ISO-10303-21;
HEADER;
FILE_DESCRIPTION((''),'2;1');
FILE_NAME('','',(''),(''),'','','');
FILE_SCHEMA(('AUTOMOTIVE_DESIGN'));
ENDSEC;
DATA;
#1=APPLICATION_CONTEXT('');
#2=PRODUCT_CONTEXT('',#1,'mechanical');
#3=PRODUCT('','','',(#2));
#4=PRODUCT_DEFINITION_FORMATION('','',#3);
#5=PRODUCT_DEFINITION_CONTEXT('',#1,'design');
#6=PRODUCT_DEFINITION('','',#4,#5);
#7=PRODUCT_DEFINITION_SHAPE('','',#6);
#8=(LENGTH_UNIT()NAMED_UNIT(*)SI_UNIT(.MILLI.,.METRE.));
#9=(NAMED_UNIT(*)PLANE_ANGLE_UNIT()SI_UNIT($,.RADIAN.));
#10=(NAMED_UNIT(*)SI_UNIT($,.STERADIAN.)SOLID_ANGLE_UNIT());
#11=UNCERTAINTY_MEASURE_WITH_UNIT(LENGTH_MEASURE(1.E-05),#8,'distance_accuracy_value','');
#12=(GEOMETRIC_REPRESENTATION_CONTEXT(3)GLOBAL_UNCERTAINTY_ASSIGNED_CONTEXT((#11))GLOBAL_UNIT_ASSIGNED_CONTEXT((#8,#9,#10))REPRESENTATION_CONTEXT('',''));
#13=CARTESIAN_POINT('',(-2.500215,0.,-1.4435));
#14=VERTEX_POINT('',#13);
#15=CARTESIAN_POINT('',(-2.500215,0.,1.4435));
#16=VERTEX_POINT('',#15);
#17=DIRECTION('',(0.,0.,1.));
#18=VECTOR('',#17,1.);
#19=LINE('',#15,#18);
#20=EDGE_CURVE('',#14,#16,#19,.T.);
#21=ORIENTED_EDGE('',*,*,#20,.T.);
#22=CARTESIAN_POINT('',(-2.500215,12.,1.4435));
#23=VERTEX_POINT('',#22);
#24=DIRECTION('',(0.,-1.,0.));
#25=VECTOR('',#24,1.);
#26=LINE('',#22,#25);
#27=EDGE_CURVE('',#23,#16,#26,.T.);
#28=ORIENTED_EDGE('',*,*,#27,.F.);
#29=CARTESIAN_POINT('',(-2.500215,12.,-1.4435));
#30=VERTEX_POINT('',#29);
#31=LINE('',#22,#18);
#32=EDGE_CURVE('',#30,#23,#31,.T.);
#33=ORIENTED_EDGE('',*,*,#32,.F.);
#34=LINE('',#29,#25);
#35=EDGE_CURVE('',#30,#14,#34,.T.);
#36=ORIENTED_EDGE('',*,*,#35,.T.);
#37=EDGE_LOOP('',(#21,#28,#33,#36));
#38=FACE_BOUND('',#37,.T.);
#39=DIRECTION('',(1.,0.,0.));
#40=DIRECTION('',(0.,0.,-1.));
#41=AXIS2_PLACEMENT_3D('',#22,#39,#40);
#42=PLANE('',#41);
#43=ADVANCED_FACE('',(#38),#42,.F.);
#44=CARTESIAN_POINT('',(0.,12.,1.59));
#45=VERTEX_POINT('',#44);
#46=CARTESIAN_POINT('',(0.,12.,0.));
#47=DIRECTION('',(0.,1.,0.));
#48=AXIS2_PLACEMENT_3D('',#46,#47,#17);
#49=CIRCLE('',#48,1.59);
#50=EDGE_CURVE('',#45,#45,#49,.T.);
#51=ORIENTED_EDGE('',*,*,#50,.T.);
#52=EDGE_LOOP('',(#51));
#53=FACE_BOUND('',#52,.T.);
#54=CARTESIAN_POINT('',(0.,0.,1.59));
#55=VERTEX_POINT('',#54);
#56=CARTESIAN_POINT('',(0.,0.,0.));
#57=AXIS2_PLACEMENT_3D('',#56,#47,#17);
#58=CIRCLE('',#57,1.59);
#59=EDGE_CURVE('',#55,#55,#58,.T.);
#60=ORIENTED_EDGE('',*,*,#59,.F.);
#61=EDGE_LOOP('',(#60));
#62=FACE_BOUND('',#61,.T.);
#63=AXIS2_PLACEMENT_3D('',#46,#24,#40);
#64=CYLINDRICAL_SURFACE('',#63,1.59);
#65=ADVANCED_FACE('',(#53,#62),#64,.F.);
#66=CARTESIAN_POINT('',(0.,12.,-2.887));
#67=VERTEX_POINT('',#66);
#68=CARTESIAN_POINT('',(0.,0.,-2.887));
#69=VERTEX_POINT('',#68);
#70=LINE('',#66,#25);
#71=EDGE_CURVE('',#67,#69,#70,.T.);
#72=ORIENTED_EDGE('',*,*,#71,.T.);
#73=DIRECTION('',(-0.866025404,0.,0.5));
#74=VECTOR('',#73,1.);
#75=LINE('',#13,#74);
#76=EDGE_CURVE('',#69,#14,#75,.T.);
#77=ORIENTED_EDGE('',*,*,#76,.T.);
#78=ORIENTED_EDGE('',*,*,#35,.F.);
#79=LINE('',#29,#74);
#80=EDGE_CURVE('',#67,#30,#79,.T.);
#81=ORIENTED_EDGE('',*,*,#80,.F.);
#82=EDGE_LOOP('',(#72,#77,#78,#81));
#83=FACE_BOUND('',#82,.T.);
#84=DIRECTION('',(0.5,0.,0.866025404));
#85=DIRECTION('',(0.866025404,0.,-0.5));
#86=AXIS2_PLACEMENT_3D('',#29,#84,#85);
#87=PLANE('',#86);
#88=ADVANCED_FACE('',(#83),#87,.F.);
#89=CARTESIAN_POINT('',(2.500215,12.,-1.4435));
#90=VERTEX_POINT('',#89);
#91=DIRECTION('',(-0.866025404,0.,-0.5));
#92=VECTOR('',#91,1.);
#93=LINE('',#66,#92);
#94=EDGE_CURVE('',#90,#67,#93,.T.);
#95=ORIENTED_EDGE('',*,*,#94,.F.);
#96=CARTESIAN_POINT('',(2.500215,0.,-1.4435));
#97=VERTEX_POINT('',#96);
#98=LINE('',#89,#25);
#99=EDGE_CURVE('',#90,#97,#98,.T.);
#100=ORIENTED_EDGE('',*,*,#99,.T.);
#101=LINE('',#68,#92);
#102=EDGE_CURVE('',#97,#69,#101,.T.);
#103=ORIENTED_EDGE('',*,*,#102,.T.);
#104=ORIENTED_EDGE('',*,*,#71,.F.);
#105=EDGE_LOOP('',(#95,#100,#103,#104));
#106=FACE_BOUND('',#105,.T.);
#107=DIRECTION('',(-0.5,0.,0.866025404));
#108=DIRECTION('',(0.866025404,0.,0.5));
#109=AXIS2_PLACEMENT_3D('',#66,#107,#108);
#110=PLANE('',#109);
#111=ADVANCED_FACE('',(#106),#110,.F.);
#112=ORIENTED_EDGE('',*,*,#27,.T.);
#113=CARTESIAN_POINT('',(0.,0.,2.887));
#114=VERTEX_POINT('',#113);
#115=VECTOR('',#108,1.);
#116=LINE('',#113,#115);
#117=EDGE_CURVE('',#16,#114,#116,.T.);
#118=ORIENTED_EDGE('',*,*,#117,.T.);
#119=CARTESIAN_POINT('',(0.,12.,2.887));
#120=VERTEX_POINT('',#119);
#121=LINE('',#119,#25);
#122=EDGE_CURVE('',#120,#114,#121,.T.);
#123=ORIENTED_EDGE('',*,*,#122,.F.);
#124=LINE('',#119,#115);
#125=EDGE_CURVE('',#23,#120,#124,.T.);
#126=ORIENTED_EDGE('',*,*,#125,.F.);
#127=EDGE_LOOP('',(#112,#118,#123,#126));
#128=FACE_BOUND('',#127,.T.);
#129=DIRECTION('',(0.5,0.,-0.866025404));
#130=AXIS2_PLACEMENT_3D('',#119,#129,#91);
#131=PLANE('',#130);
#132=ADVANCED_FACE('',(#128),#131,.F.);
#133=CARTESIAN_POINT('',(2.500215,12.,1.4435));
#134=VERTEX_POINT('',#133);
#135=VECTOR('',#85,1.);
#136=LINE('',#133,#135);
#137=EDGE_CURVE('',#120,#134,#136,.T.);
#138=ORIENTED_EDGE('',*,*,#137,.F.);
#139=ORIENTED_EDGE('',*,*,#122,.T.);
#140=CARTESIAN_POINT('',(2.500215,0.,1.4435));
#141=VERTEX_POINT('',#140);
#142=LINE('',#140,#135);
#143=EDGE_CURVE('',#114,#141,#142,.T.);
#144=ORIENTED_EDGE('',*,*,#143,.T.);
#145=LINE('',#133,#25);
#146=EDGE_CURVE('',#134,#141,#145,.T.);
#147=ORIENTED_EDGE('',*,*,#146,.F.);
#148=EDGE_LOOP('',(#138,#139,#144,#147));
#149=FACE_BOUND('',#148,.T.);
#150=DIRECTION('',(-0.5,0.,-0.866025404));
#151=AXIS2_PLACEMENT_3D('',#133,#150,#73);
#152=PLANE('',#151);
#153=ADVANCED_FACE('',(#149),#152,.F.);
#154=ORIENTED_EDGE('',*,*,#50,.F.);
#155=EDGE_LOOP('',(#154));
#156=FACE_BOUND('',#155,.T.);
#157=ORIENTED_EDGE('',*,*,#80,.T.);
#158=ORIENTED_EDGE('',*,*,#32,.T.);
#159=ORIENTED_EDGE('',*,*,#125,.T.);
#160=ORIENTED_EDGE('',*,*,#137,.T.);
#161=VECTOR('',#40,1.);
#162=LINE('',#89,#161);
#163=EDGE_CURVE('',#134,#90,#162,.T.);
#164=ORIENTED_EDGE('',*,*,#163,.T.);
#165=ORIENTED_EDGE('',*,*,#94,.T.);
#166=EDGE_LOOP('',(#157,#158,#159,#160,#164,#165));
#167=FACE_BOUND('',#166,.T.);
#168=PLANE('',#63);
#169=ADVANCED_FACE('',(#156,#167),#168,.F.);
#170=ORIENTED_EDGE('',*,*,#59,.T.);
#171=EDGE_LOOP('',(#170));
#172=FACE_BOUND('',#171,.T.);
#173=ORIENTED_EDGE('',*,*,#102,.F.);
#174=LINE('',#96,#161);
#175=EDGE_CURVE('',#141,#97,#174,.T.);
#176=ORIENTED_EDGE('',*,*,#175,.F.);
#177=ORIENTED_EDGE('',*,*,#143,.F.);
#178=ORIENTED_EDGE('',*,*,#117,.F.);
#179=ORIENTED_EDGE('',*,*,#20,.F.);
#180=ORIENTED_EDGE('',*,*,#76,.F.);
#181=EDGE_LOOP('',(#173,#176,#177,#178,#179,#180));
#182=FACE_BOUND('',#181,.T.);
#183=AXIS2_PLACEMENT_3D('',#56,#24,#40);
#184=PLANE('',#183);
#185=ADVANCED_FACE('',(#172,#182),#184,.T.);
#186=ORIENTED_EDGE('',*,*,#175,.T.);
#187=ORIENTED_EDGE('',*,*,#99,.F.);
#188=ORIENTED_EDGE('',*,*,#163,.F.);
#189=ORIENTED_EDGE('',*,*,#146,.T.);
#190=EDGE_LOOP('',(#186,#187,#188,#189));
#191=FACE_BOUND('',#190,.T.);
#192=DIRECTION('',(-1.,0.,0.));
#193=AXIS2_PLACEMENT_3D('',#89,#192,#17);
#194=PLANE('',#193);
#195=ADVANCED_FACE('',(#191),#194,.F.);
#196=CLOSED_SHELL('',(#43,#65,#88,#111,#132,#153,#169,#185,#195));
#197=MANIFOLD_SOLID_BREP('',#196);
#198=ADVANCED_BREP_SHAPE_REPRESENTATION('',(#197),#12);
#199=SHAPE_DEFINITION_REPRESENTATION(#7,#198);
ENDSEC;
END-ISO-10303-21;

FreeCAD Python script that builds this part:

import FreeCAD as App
import Part
import Sketcher
Q = App.Units.Quantity


def add_polygon(sketch, points):
    """Adds a closed chain of lines whose ends are joined by coincident constraints."""
    first, n = sketch.GeometryCount, len(points)
    for a, b in zip(points, points[1:] + points[:1]):
        sketch.addGeometry(Part.LineSegment(App.Vector(*a, 0), App.Vector(*b, 0)), False)
    for i in range(n):
        sketch.addConstraint(Sketcher.Constraint("Coincident", first + i, 2, first + (i + 1) % n, 1))

doc = App.newDocument("Part")
params = doc.addObject("Spreadsheet::Sheet", "Params")
for row, (alias, value) in enumerate([
    ("sketch1_diameter", "3.18 mm"),
    ("pad1_length", "12 mm"),
], start=1):
    params.set(f"A{row}", alias)
    params.set(f"B{row}", "=" + value)
    params.setAlias(f"B{row}", alias)

body = doc.addObject("PartDesign::Body", "Body")

sketch1 = body.newObject("Sketcher::SketchObject", "Sketch")
sketch1.AttachmentSupport = (doc.getObject("XZ_Plane"), [""])
sketch1.MapMode = "FlatFace"
add_polygon(sketch1, [(2.500215, -1.4435), (0, -2.887), (-2.500215, -1.4435), (-2.500215, 1.4435), (0, 2.887), (2.500215, 1.4435)])
sketch1.addGeometry(Part.Circle(App.Vector(0, 0, 0), App.Vector(0, 0, 1), 1.59), False)
sketch1.addConstraint([
    Sketcher.Constraint("Vertical", 2),
    Sketcher.Constraint("Vertical", 5),
    Sketcher.Constraint("Coincident", 6, 3, -1, 1),
    Sketcher.Constraint("Symmetric", 0, 2, 3, 2, -1, 1),
    Sketcher.Constraint("Symmetric", 1, 2, 4, 2, -1, 1),
    Sketcher.Constraint("PointOnObject", 0, 2, -2),
    Sketcher.Constraint("Parallel", 0, 3),
    Sketcher.Constraint("Horizontal", 2, 2, 4, 2),
    Sketcher.Constraint("Diameter", 6, Q("3.18 mm")),
    Sketcher.Constraint("Angle", 0, Q("-150 deg")),
    Sketcher.Constraint("DistanceY", 2, 1, 2, 2, Q("2.887 mm")),
    Sketcher.Constraint("Distance", 0, Q("2.887 mm")),
])
sketch1.setExpression("Constraints[14]", "Params.sketch1_diameter")
pad1 = body.newObject("PartDesign::Pad", "Pad")
pad1.Profile = sketch1
pad1.setExpression("Length", "Params.pad1_length")
pad1.Reversed = True

doc.recompute()
